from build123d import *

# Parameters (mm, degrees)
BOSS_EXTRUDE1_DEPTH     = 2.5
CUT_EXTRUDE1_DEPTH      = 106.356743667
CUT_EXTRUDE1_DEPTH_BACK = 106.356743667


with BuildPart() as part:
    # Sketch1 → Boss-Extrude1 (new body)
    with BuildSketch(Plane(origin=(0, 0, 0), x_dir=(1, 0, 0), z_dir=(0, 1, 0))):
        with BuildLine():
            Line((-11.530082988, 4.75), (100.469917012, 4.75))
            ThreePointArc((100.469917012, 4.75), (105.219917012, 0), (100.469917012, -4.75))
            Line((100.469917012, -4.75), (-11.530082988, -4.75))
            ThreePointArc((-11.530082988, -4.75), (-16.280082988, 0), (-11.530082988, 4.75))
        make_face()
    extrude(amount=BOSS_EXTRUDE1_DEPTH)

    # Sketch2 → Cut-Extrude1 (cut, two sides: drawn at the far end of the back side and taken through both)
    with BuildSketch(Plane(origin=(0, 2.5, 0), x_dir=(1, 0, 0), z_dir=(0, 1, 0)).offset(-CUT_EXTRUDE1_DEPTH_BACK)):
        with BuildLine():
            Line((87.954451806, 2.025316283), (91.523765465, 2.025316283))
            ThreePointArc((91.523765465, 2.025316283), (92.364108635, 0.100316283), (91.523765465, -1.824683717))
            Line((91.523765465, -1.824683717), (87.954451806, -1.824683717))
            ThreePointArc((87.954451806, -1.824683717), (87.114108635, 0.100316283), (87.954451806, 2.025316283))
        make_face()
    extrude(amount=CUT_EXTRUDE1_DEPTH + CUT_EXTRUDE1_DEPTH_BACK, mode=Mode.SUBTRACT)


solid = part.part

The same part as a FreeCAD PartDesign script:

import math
import FreeCAD as App
import Part
import Sketcher

doc = App.newDocument("Part")
params = doc.addObject("Spreadsheet::Sheet", "Params")
for row, (alias, value) in enumerate([
    ("sketch1_width", "112 mm"),
    ("sketch1_radius", "4.75 mm"),
    ("pad1_length", "2.5 mm"),
], start=1):
    params.set(f"A{row}", alias)
    params.set(f"B{row}", "=" + value)
    params.setAlias(f"B{row}", alias)

body = doc.addObject("PartDesign::Body", "Body")

# Sketch on XZ plane
sketch1 = body.newObject("Sketcher::SketchObject", "Sketch")
sketch1.AttachmentSupport = (doc.getObject("XZ_Plane"), [""])
sketch1.MapMode = "FlatFace"
sketch1.addGeometry([
    Part.LineSegment(App.Vector(100.5, -4.8, 0), App.Vector(-11.5, -4.8, 0)),
    Part.ArcOfCircle(Part.Circle(App.Vector(-11.5, 0, 0), App.Vector(0, 0, 1), 4.8), math.radians(90), math.radians(270)),
    Part.LineSegment(App.Vector(-11.5, 4.8, 0), App.Vector(100.5, 4.8, 0)),
    Part.ArcOfCircle(Part.Circle(App.Vector(100.5, 0, 0), App.Vector(0, 0, 1), 4.8), math.radians(-90), math.radians(90)),
], False)
sketch1.addConstraint([
    Sketcher.Constraint("Tangent", 0, 2, 1, 2),
    Sketcher.Constraint("Tangent", 1, 1, 2, 1),
    Sketcher.Constraint("Tangent", 2, 2, 3, 2),
    Sketcher.Constraint("Tangent", 3, 1, 0, 1),
    Sketcher.Constraint("Horizontal", 0),
    Sketcher.Constraint("Horizontal", 2),
    Sketcher.Constraint("PointOnObject", 1, 3, -1),
    Sketcher.Constraint("DistanceX", 0, 2, 0, 1, 112.0),
    Sketcher.Constraint("Radius", 1, 4.75),
    Sketcher.Constraint("DistanceX", 1, 3, -1, 1, 11.530083),
])
sketch1.setExpression("Constraints[7]", "Params.sketch1_width")
sketch1.setExpression("Constraints[8]", "Params.sketch1_radius")
pad1 = body.newObject("PartDesign::Pad", "Pad")
pad1.Profile = sketch1
pad1.setExpression("Length", "Params.pad1_length")
pad1.Reversed = True

# Sketch on XZ plane
sketch2 = body.newObject("Sketcher::SketchObject", "Sketch001")
sketch2.AttachmentSupport = (doc.getObject("XZ_Plane"), [""])
sketch2.MapMode = "FlatFace"
sketch2.AttachmentOffset = App.Placement(App.Vector(0, 0, -2.5), App.Rotation())
sketch2.addGeometry([
    Part.LineSegment(App.Vector(91.5, -2, 0), App.Vector(88, -2, 0)),
    Part.ArcOfCircle(Part.Circle(App.Vector(89.7, -0.1, 0), App.Vector(0, 0, 1), 2.6), math.radians(133), math.radians(227)),
    Part.LineSegment(App.Vector(88, 1.8, 0), App.Vector(91.5, 1.8, 0)),
    Part.ArcOfCircle(Part.Circle(App.Vector(89.7, -0.1, 0), App.Vector(0, 0, 1), 2.6), math.radians(-47), math.radians(47)),
], False)
sketch2.addConstraint([
    Sketcher.Constraint("Coincident", 0, 2, 1, 2),
    Sketcher.Constraint("Coincident", 1, 1, 2, 1),
    Sketcher.Constraint("Coincident", 2, 2, 3, 2),
    Sketcher.Constraint("Coincident", 3, 1, 0, 1),
    Sketcher.Constraint("Horizontal", 0),
    Sketcher.Constraint("Horizontal", 2),
    Sketcher.Constraint("Coincident", 3, 3, 1, 3),
    Sketcher.Constraint("Equal", 1, 3),
    Sketcher.Constraint("Vertical", 0, 2, 1, 1),
    Sketcher.Constraint("Radius", 1, 2.625),
    Sketcher.Constraint("DistanceY", 0, 2, 1, 1, 3.85),
    Sketcher.Constraint("DistanceX", -1, 1, 1, 3, 89.739109),
    Sketcher.Constraint("DistanceY", 1, 3, -1, 1, 0.100316),
])
pocket1 = body.newObject("PartDesign::Pocket", "Pocket")
pocket1.Profile = sketch2
pocket1.Type = "ThroughAll"
pocket1.Midplane = True

doc.recompute()
